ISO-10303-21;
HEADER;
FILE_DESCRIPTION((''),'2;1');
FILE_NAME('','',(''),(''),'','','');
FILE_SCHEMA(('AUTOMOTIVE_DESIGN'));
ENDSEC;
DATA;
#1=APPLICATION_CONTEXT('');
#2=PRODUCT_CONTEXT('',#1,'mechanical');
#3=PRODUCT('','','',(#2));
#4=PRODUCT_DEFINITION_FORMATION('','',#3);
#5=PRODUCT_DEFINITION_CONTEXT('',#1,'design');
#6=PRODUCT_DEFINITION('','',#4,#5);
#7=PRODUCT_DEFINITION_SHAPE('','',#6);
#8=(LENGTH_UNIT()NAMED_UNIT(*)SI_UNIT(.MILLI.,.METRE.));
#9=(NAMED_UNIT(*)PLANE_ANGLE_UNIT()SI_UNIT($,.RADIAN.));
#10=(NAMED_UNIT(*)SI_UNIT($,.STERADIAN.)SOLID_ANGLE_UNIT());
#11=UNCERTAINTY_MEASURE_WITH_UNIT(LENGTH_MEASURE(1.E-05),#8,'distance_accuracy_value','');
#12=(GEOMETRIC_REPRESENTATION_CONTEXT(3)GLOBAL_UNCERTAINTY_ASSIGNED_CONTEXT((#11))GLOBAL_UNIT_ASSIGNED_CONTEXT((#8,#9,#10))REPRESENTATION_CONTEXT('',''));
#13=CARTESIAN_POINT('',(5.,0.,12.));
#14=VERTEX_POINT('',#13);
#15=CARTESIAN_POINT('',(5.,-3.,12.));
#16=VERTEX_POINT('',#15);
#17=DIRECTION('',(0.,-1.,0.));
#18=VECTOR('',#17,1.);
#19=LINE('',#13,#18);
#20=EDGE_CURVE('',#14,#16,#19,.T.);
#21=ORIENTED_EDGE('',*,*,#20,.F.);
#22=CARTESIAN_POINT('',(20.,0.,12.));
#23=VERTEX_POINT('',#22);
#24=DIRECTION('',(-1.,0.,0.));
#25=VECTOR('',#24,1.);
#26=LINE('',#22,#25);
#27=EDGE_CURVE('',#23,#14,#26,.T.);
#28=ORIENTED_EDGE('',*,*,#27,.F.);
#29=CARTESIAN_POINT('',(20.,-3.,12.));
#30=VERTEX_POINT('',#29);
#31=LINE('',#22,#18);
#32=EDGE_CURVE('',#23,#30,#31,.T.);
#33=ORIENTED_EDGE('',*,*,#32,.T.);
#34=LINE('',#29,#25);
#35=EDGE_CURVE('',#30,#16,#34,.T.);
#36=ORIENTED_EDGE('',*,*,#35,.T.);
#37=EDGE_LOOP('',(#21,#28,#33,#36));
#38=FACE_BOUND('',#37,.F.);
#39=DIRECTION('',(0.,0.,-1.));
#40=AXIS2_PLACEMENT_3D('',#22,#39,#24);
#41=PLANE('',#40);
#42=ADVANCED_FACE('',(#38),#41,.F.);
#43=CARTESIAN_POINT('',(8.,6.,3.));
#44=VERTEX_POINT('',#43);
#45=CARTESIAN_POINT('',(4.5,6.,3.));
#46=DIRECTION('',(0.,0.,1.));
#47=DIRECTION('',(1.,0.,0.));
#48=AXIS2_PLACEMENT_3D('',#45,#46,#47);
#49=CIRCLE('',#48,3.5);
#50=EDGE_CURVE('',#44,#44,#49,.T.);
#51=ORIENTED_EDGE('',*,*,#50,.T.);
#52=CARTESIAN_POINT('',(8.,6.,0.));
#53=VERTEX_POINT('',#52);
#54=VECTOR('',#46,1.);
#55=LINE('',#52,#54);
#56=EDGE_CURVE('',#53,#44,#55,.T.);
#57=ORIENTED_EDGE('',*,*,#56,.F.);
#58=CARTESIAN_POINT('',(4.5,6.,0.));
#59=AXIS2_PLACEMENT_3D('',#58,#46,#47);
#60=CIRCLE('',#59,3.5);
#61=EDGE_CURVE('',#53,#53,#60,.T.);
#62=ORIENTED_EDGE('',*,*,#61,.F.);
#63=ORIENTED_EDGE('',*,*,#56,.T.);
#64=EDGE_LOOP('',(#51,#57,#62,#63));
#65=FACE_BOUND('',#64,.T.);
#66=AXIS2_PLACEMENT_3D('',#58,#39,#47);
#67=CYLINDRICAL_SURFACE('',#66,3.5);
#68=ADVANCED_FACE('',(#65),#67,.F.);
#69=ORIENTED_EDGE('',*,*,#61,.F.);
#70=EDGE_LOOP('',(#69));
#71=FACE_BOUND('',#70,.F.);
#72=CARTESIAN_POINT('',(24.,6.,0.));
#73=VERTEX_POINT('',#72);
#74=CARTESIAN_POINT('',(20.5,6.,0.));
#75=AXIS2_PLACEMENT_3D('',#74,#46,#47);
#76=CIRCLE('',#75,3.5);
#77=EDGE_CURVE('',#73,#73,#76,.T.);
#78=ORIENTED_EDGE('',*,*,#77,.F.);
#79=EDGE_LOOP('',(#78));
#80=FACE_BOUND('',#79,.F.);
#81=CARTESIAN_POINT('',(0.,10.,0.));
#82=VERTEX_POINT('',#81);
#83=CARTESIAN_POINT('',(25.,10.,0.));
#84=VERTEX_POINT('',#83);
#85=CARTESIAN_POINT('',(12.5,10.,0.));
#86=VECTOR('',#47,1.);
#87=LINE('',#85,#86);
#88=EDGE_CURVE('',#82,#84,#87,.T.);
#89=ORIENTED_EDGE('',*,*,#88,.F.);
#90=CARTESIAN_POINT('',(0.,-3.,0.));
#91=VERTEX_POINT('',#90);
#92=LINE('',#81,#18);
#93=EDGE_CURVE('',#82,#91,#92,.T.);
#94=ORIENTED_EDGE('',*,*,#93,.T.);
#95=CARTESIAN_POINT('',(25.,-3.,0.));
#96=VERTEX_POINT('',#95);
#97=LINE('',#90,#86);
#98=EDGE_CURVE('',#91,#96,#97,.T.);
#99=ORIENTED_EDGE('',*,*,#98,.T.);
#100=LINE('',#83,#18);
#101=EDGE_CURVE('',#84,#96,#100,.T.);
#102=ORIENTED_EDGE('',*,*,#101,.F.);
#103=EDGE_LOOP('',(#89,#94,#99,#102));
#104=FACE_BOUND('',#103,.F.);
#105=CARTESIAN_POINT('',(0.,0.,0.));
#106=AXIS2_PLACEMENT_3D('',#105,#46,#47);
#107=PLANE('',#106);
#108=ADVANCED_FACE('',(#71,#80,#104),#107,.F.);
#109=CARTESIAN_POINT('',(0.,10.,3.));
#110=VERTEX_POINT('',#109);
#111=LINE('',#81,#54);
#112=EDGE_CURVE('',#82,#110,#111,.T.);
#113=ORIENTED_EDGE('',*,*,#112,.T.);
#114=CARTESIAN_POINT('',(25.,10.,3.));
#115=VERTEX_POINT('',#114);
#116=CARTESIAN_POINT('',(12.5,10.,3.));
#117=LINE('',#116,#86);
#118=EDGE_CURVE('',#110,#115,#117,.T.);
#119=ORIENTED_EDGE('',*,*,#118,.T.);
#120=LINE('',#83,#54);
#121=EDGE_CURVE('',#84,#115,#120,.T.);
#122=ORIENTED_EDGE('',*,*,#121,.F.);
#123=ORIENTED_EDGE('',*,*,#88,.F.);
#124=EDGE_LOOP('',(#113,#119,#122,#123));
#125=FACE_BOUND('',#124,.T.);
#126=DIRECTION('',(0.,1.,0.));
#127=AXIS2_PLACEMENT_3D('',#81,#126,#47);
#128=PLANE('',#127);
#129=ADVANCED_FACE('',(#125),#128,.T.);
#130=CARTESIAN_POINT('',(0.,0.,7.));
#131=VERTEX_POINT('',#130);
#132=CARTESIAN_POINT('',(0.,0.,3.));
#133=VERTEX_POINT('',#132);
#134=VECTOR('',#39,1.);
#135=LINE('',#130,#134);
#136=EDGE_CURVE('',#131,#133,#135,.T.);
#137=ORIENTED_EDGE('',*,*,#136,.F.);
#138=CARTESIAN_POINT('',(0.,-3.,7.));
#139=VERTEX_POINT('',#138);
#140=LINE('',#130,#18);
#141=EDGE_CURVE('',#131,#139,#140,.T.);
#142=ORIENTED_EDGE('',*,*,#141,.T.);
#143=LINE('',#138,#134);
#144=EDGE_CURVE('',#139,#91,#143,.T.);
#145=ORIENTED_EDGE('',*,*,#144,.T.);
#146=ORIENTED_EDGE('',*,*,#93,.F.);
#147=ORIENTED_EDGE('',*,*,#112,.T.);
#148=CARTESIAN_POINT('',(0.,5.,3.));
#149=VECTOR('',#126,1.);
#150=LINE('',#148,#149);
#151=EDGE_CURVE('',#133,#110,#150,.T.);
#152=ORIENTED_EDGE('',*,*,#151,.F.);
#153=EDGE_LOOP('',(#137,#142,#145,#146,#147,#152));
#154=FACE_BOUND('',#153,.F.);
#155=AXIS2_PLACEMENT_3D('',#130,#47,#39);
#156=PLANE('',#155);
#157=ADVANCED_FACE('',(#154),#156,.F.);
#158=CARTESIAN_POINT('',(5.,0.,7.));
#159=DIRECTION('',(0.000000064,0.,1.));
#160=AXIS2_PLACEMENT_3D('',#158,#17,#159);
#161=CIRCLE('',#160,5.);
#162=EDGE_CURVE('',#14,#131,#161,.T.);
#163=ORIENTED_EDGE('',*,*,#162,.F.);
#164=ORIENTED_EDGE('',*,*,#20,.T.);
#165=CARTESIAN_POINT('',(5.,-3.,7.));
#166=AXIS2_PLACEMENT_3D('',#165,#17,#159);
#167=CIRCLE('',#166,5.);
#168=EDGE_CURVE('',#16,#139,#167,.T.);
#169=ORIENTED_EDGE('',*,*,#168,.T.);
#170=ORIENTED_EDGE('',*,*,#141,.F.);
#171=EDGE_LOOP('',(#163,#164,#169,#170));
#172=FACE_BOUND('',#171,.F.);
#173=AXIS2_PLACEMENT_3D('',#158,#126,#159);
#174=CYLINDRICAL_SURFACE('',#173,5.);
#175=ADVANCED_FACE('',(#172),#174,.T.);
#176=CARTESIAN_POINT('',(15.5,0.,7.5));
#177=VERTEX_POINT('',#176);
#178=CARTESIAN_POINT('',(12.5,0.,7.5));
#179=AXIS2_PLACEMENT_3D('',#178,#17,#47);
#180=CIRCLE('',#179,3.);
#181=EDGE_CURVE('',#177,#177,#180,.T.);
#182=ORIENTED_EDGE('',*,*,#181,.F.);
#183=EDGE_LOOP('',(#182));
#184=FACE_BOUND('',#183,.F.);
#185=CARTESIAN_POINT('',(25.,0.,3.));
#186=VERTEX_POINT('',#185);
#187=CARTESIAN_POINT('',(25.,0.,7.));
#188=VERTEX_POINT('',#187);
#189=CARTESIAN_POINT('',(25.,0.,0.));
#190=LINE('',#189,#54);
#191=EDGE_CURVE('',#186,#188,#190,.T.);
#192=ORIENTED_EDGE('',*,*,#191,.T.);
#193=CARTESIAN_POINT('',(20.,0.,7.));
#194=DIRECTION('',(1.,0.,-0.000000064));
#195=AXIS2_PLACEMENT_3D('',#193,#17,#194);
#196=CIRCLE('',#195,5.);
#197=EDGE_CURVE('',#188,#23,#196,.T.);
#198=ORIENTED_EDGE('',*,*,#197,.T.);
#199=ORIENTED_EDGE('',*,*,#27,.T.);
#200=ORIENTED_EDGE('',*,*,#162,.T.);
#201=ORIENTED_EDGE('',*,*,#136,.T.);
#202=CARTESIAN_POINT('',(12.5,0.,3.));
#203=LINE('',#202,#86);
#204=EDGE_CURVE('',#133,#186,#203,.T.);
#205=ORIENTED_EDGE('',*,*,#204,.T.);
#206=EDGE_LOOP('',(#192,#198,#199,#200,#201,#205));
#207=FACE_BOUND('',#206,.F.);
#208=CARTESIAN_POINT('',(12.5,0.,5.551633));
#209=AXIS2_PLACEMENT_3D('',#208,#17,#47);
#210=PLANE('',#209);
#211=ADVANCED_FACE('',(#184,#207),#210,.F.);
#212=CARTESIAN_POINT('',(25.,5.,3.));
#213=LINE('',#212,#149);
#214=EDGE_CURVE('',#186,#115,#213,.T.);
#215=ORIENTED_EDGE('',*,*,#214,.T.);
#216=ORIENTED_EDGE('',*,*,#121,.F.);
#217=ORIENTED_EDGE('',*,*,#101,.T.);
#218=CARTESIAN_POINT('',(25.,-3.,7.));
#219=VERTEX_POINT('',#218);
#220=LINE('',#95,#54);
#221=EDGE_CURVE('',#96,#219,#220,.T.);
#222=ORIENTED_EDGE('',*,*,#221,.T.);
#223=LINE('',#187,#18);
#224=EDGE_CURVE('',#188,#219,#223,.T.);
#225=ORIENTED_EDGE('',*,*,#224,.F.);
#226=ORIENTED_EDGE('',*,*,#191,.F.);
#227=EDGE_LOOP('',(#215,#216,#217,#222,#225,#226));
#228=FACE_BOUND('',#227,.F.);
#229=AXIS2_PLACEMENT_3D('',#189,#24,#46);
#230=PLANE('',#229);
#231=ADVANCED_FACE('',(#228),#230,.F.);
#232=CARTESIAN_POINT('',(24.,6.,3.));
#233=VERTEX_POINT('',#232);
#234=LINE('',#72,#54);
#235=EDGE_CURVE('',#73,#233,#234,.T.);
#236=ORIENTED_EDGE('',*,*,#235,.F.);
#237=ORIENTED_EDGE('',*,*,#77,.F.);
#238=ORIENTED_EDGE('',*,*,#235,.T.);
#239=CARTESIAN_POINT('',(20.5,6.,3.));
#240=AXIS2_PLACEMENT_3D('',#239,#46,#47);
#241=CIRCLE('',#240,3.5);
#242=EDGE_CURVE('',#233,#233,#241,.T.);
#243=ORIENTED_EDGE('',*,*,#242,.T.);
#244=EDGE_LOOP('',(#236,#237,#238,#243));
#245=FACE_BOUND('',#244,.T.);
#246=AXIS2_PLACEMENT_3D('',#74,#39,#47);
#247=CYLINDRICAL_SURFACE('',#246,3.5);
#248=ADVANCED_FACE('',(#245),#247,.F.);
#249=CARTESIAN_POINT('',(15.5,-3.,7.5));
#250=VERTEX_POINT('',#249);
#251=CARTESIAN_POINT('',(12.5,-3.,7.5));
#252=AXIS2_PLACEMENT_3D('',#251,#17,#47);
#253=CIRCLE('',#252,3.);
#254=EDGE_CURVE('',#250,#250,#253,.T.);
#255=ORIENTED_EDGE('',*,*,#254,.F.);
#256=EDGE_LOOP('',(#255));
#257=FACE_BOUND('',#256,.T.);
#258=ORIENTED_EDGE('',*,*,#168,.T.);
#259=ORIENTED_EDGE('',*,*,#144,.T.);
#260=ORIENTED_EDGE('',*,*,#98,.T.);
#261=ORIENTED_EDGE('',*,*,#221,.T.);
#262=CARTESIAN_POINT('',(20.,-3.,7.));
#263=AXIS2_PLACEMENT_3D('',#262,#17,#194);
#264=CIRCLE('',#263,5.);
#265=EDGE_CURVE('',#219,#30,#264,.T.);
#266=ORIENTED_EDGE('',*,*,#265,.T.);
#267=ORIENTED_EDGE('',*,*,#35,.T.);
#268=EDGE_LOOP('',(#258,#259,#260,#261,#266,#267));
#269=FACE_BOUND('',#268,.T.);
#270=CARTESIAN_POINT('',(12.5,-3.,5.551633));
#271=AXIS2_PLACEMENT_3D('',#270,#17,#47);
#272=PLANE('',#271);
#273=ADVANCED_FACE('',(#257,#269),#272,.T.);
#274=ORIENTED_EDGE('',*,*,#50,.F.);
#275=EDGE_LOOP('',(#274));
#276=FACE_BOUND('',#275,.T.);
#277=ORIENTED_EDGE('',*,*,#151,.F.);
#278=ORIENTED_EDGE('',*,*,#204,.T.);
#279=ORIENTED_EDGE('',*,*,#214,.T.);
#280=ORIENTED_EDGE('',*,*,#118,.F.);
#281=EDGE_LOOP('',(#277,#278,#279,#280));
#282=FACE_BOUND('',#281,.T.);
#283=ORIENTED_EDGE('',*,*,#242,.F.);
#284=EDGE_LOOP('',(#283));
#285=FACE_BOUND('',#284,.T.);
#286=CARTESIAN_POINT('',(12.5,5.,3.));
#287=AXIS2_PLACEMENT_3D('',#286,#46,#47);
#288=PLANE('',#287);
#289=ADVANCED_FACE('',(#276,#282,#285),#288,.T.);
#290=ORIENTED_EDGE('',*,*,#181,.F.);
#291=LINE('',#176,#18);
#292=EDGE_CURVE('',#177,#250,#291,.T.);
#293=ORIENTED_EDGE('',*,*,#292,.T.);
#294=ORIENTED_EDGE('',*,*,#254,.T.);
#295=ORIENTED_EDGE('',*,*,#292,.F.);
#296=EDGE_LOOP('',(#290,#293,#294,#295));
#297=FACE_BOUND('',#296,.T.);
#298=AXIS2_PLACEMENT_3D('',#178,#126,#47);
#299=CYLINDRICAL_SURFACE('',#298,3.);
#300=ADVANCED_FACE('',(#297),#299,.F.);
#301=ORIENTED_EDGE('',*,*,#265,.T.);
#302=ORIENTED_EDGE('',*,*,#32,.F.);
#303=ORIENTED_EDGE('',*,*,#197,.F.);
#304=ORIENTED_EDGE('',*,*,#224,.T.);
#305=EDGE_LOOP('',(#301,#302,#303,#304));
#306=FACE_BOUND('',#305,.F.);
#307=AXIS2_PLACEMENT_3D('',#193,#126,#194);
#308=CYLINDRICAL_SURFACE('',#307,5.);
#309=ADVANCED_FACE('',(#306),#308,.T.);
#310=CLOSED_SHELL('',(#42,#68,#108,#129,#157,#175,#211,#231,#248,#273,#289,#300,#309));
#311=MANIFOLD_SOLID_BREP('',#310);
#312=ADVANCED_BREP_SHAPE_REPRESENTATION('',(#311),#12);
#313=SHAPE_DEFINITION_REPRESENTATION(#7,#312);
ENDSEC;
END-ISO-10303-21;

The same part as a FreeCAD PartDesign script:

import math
import FreeCAD as App
import Part
import Sketcher

doc = App.newDocument("Part")
body = doc.addObject("PartDesign::Body", "Body")

# Sketch on XY plane
sketch1 = doc.addObject("Sketcher::SketchObject", "Sketch")
body.addObject(sketch1)
sketch1.AttachmentSupport = (doc.XY_Plane, [""])
sketch1.MapMode = "FlatFace"
sketch1.addGeometry([
    Part.LineSegment(App.Vector(0, 10, 0), App.Vector(0, 0, 0)),  # 0
    Part.LineSegment(App.Vector(0, 0, 0), App.Vector(25, 0, 0)),  # 1
    Part.LineSegment(App.Vector(25, 0, 0), App.Vector(25, 10, 0)),  # 2
    Part.LineSegment(App.Vector(25, 10, 0), App.Vector(0, 10, 0)),  # 3
    Part.Circle(App.Vector(4.5, 6, 0), App.Vector(0, 0, 1), 3.5),  # 4
    Part.Circle(App.Vector(20.5, 6, 0), App.Vector(0, 0, 1), 3.5),  # 5
], False)
sketch1.addConstraint([
    Sketcher.Constraint("Coincident", 0, 2, 1, 1),
    Sketcher.Constraint("Coincident", 1, 2, 2, 1),
    Sketcher.Constraint("Coincident", 2, 2, 3, 1),
    Sketcher.Constraint("Coincident", 3, 2, 0, 1),
    Sketcher.Constraint("Vertical", 0),
    Sketcher.Constraint("Horizontal", 1),
    Sketcher.Constraint("Vertical", 2),
    Sketcher.Constraint("Horizontal", 3),
    Sketcher.Constraint("Coincident", 0, 2, -1, 1),
    Sketcher.Constraint("Equal", 4, 5),
    Sketcher.Constraint("Horizontal", 4, 3, 5, 3),
    Sketcher.Constraint("Diameter", 4, 7.0),
    Sketcher.Constraint("DistanceX", 1, 1, 1, 2, 25.0),
    Sketcher.Constraint("DistanceY", 0, 2, 0, 1, 10.0),
    Sketcher.Constraint("DistanceY", -1, 1, 4, 3, 6.0),
    Sketcher.Constraint("DistanceX", 4, 3, 5, 3, 16.0),
    Sketcher.Constraint("DistanceX", -1, 1, 4, 3, 4.5),
])
pad1 = doc.addObject("PartDesign::Pad", "Pad")
body.addObject(pad1)
pad1.Profile = sketch1
pad1.Length = 3

# Sketch on XZ plane
sketch2 = doc.addObject("Sketcher::SketchObject", "Sketch001")
body.addObject(sketch2)
sketch2.AttachmentSupport = (doc.XZ_Plane, [""])
sketch2.MapMode = "FlatFace"
sketch2.addGeometry([
    Part.LineSegment(App.Vector(0, 7, 0), App.Vector(0, 0, 0)),  # 0
    Part.LineSegment(App.Vector(0, 0, 0), App.Vector(25, 0, 0)),  # 1
    Part.LineSegment(App.Vector(25, 0, 0), App.Vector(25, 7, 0)),  # 2
    Part.ArcOfCircle(Part.Circle(App.Vector(20, 7, 0), App.Vector(0, 0, 1), 5), math.radians(0), math.radians(90)),  # 3
    Part.LineSegment(App.Vector(20, 12, 0), App.Vector(5, 12, 0)),  # 4
    Part.ArcOfCircle(Part.Circle(App.Vector(5, 7, 0), App.Vector(0, 0, 1), 5), math.radians(90), math.radians(180)),  # 5
    Part.Circle(App.Vector(12.5, 7.5, 0), App.Vector(0, 0, 1), 3),  # 6
], False)
sketch2.addConstraint([
    Sketcher.Constraint("Coincident", 0, 2, 1, 1),
    Sketcher.Constraint("Coincident", 1, 2, 2, 1),
    Sketcher.Constraint("Tangent", 2, 2, 3, 1),
    Sketcher.Constraint("Tangent", 3, 2, 4, 1),
    Sketcher.Constraint("Tangent", 4, 2, 5, 1),
    Sketcher.Constraint("Tangent", 5, 2, 0, 1),
    Sketcher.Constraint("Vertical", 0),
    Sketcher.Constraint("Horizontal", 1),
    Sketcher.Constraint("Vertical", 2),
    Sketcher.Constraint("Horizontal", 4),
    Sketcher.Constraint("Coincident", 0, 2, -1, 1),
    Sketcher.Constraint("Equal", 3, 5),
    Sketcher.Constraint("Diameter", 6, 6.0),
    Sketcher.Constraint("Radius", 3, 5.0),
    Sketcher.Constraint("DistanceX", 1, 1, 1, 2, 25.0),
    Sketcher.Constraint("DistanceY", 0, 2, 0, 1, 7.0),
    Sketcher.Constraint("DistanceX", -1, 1, 6, 3, 12.5),
    Sketcher.Constraint("DistanceY", -1, 1, 6, 3, 7.5),
])
pad2 = doc.addObject("PartDesign::Pad", "Pad001")
body.addObject(pad2)
pad2.Profile = sketch2
pad2.Length = 3

doc.recompute()
